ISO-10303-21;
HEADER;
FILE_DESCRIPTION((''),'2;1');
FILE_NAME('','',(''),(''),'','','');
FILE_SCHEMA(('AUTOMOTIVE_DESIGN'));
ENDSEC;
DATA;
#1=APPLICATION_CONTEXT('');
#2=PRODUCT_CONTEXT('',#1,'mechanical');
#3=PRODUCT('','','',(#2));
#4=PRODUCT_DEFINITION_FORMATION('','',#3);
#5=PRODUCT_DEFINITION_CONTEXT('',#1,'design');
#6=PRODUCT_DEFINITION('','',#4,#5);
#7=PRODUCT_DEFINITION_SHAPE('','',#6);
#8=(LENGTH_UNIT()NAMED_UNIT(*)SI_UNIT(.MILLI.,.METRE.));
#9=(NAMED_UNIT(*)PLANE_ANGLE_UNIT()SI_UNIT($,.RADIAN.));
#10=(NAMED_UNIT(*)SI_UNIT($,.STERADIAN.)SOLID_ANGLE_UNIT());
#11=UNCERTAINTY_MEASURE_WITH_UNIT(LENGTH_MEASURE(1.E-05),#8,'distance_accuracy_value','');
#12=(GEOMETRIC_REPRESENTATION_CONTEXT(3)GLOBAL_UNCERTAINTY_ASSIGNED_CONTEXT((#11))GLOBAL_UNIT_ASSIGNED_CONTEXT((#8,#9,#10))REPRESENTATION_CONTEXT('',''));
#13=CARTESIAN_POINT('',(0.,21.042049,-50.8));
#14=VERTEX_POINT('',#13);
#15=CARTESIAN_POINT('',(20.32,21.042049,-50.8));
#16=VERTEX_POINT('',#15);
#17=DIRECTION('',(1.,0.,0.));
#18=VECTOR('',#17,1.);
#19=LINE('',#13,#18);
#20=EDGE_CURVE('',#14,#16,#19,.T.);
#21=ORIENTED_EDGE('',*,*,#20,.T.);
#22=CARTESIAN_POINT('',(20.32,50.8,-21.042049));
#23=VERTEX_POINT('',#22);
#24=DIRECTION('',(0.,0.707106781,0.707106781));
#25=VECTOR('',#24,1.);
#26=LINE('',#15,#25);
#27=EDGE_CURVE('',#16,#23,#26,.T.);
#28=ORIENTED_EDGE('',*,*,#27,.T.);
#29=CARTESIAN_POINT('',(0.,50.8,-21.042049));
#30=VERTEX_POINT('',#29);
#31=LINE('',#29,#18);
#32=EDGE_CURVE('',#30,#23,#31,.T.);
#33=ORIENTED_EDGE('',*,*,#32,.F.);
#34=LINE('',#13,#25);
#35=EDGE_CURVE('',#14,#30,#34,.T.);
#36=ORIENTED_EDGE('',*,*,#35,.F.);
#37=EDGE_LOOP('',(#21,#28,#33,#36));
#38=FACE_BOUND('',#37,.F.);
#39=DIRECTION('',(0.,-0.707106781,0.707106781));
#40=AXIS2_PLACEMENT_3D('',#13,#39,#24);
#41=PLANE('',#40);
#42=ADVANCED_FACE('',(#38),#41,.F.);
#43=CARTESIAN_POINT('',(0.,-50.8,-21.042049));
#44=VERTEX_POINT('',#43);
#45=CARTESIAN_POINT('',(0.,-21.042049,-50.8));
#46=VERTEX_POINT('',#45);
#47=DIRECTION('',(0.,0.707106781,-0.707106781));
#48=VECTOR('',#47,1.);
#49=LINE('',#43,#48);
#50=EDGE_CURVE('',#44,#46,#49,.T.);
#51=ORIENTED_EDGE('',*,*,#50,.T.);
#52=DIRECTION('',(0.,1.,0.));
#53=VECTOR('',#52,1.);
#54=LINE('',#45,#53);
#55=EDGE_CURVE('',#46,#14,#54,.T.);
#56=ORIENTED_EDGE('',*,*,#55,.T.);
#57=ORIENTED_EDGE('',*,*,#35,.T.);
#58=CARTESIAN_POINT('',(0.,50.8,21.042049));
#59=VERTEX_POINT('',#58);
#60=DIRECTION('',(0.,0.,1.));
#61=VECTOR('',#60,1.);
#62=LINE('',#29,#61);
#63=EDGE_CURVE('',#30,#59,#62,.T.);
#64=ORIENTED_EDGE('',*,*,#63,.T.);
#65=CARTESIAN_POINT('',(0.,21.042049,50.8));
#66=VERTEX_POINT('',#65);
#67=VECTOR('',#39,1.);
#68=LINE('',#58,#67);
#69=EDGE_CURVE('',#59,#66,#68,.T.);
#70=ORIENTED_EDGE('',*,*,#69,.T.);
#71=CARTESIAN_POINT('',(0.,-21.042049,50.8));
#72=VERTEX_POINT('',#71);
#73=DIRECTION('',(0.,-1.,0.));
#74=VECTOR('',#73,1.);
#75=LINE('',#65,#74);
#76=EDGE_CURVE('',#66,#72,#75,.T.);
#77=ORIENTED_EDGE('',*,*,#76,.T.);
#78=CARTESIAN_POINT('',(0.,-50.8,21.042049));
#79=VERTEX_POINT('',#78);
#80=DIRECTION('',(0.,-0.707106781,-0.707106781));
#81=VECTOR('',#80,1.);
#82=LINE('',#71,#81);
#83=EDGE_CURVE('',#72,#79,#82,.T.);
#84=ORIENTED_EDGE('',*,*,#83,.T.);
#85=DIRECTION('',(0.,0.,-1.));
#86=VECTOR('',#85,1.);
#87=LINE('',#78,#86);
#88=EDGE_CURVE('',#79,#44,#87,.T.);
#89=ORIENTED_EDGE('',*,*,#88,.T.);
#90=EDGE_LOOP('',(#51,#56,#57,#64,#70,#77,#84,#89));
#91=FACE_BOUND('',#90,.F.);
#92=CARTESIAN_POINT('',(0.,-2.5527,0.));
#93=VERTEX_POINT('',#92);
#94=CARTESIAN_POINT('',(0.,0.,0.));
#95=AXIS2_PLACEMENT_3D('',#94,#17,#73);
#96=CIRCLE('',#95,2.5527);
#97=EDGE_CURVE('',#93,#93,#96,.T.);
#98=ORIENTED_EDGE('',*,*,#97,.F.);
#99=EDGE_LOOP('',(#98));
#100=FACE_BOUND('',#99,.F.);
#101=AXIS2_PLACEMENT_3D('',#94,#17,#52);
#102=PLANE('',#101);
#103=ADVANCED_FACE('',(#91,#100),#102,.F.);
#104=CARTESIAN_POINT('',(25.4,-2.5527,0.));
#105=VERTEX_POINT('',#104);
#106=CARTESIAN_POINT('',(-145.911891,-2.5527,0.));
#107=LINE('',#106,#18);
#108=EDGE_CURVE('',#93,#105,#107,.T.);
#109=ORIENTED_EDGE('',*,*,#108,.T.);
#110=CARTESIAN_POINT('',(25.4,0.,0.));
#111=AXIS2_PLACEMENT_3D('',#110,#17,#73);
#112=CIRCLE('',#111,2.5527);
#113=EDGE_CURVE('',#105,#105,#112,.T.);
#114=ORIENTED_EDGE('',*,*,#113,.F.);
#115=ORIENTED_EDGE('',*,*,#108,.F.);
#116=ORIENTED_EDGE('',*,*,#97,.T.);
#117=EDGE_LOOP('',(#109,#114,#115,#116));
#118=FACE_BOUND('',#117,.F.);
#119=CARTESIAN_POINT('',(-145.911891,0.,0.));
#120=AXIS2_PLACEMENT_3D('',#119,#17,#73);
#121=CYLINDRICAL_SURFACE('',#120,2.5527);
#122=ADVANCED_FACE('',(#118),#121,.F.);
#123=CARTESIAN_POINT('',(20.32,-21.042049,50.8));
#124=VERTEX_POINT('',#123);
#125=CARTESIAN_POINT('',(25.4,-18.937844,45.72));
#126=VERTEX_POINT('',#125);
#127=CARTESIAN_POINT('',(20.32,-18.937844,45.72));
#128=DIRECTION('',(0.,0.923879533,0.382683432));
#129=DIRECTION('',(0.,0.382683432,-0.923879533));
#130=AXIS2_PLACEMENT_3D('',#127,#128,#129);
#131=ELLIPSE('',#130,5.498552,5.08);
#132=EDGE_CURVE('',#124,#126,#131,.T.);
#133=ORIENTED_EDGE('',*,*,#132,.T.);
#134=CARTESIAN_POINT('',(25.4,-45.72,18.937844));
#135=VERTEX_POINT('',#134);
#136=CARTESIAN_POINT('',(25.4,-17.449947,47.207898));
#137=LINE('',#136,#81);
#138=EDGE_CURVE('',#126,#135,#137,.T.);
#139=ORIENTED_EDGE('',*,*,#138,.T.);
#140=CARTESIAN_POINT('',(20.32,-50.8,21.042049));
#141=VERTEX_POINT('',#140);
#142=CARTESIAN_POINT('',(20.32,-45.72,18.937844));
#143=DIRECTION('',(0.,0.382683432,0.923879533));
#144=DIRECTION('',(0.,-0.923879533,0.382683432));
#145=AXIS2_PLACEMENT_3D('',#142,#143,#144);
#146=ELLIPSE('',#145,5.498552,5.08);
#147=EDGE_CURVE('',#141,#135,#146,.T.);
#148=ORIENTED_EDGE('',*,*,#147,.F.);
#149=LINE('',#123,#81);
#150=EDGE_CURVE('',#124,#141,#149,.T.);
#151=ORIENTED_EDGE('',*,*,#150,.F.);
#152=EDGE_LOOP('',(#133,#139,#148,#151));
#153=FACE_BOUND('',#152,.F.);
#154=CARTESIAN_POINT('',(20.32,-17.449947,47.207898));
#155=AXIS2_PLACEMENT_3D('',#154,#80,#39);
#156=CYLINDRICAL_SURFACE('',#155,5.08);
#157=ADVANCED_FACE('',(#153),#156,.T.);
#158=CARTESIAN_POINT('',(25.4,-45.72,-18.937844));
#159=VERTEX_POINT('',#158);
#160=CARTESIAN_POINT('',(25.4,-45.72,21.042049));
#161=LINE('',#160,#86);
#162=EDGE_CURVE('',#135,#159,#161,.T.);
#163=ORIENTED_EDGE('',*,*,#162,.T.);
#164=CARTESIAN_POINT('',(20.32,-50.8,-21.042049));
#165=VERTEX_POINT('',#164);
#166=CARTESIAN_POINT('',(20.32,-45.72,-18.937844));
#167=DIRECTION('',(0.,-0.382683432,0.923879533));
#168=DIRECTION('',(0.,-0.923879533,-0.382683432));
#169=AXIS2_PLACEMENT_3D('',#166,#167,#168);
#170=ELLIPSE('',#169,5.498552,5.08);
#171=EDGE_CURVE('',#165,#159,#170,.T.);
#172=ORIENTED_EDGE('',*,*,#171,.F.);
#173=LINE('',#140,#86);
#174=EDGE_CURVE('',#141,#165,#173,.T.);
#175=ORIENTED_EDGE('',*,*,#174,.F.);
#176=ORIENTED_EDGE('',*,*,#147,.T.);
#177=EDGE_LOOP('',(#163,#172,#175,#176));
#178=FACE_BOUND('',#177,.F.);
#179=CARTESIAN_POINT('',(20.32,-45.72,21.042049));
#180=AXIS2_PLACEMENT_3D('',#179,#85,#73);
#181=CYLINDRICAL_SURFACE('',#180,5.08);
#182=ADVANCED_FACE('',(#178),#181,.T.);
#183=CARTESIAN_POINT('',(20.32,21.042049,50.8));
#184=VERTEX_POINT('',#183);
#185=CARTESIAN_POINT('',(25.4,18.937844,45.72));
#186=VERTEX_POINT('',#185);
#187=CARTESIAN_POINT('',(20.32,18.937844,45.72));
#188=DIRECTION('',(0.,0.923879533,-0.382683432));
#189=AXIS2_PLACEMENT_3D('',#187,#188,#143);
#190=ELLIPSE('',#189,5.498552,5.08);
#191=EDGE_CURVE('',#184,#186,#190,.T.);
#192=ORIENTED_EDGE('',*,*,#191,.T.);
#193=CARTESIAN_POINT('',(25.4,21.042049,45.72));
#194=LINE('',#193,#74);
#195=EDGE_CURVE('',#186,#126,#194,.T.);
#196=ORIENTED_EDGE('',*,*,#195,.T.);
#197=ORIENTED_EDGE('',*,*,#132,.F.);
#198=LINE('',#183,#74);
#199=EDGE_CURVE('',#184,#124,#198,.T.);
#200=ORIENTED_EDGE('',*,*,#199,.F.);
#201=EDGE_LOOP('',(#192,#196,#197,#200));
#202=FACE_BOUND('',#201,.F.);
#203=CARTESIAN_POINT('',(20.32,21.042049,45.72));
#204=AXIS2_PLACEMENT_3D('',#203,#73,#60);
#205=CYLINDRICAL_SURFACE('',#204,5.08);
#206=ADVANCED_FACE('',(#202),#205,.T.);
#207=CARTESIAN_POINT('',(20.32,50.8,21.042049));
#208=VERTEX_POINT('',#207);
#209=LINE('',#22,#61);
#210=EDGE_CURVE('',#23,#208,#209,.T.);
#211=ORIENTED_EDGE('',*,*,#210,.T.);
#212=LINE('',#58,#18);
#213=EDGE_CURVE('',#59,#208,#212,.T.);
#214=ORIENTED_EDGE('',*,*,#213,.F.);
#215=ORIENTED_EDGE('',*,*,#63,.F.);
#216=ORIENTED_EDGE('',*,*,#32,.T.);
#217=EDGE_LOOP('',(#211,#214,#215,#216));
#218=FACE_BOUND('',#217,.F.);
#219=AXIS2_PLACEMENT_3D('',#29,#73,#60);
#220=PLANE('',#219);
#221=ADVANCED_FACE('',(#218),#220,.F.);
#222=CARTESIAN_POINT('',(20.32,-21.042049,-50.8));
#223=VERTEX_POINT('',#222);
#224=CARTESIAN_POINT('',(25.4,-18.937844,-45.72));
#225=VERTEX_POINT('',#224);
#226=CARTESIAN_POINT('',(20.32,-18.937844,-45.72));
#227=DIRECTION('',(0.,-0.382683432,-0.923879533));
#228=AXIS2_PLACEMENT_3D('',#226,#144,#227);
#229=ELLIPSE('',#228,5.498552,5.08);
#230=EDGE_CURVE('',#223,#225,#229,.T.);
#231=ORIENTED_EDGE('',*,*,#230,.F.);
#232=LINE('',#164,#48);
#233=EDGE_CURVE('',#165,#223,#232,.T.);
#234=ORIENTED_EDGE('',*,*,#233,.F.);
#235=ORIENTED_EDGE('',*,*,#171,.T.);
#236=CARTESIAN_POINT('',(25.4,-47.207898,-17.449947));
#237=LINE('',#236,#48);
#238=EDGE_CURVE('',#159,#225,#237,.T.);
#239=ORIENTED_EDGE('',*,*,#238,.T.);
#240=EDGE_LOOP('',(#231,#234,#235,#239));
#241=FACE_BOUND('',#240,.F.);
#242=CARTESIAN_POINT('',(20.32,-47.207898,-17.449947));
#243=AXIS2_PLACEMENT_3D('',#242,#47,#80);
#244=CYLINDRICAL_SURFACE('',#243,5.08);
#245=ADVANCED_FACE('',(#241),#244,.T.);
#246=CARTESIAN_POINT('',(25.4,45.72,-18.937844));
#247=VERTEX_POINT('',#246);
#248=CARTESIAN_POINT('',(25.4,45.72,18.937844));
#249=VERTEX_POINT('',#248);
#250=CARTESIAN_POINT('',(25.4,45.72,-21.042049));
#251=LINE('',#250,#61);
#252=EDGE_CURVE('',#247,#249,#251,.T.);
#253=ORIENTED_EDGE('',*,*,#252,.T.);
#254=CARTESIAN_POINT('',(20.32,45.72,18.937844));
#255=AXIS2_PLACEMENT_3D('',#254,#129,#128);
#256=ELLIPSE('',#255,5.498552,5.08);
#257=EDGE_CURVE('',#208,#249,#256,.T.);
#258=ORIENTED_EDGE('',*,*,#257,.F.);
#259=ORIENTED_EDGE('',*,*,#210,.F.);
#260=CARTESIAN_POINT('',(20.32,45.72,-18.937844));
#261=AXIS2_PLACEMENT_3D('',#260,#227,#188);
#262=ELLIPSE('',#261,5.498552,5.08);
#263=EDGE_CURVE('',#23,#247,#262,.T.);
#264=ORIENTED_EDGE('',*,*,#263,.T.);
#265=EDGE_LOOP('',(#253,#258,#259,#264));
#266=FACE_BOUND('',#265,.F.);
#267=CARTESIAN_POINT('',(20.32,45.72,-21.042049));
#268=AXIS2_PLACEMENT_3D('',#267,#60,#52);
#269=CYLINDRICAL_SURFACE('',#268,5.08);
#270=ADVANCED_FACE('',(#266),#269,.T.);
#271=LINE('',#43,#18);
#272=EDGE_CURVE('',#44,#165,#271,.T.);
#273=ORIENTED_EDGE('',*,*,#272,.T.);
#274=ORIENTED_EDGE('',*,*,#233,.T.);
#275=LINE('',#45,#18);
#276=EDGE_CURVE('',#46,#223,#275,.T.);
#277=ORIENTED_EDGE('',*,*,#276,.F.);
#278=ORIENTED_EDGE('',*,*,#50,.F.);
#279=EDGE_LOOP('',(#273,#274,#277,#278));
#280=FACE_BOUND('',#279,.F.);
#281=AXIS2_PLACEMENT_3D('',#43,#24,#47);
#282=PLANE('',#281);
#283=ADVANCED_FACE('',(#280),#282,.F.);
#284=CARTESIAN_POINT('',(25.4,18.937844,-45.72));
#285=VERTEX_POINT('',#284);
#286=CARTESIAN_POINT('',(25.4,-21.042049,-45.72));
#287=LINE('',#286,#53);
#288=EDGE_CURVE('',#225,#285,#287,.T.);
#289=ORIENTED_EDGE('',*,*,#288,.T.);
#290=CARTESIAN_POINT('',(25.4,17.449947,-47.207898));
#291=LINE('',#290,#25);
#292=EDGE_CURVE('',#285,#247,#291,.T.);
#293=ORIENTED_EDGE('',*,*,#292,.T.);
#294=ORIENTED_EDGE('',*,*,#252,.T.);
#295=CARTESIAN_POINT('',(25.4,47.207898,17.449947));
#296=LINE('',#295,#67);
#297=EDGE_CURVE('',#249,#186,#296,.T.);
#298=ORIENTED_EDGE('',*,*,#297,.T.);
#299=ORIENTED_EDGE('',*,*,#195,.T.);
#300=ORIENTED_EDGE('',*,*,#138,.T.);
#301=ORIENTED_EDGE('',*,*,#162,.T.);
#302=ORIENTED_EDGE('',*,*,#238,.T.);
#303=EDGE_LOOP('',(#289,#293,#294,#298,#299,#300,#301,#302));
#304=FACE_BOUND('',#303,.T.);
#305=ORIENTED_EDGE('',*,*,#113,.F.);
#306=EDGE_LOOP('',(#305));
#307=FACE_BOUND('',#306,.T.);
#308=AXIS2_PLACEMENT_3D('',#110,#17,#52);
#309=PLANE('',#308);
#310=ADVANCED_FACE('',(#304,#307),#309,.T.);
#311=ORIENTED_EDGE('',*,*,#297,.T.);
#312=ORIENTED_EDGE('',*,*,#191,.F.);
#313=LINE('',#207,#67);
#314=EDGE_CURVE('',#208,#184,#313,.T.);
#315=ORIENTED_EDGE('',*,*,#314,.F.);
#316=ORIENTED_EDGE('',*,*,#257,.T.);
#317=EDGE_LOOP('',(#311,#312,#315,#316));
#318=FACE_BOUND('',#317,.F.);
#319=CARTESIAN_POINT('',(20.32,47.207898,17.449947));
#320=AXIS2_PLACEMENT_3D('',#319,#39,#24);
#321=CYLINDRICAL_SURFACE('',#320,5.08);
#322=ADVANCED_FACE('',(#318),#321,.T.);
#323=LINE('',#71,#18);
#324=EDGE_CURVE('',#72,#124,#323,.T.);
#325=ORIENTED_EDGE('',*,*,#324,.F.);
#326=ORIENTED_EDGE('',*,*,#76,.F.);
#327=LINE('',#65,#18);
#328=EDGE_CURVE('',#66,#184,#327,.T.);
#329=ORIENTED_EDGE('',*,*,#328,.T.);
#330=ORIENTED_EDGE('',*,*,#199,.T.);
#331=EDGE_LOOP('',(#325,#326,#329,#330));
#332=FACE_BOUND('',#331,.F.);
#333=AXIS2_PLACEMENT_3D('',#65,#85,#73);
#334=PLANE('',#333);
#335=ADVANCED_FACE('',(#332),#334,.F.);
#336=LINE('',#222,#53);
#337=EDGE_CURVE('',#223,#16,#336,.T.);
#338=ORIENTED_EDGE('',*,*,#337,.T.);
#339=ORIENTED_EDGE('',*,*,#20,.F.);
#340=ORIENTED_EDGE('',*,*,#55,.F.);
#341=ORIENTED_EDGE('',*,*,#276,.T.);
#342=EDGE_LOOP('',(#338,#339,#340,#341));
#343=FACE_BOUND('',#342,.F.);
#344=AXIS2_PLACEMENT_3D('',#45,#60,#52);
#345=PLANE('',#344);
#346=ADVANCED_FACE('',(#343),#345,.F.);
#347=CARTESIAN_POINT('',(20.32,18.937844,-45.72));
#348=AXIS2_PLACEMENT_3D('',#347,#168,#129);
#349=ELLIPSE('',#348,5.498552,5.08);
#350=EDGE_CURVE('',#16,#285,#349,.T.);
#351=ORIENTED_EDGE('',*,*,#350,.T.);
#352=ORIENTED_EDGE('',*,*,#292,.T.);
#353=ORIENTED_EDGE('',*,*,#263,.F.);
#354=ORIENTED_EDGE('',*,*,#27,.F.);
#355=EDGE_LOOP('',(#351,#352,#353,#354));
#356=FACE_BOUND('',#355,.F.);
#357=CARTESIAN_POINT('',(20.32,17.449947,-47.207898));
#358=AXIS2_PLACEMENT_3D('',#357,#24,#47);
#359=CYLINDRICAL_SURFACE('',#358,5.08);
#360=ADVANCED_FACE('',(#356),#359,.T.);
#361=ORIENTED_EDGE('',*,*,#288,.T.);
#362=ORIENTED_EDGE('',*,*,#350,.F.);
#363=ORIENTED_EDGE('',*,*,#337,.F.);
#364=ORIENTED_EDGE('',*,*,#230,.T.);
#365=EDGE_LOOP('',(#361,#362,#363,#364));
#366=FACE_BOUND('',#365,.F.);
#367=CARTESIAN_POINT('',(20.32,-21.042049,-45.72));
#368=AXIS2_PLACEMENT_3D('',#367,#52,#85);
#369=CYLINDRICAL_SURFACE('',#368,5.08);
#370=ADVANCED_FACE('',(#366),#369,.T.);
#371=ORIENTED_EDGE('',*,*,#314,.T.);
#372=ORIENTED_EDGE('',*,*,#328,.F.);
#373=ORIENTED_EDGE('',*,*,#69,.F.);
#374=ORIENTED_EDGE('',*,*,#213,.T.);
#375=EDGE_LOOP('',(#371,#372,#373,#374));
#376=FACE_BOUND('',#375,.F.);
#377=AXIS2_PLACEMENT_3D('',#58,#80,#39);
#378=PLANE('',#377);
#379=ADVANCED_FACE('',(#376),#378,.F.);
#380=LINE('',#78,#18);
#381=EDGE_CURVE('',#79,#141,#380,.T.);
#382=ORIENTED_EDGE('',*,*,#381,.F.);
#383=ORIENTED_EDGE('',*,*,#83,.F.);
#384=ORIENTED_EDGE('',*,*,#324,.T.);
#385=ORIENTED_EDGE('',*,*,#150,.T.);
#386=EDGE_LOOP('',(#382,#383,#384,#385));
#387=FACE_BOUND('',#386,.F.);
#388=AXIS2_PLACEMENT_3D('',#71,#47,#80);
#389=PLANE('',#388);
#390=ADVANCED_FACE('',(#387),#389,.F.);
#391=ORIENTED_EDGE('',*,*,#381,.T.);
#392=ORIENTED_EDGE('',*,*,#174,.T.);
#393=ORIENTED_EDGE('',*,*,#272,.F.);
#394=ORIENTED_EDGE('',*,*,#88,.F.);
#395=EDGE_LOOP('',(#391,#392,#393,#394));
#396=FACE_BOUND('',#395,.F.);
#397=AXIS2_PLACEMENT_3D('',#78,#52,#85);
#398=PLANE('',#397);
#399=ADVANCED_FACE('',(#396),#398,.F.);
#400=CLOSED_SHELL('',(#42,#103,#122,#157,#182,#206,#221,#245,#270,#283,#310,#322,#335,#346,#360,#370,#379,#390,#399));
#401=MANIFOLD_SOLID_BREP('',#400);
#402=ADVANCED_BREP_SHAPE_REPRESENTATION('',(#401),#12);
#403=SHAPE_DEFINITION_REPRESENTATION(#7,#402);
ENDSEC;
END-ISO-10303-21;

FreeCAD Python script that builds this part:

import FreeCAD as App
import Part
import Sketcher

V = App.Vector
Q = App.Units.Quantity


def edges_at(feature, points):
    """Names of the edges that pass closest to the given points."""
    edges = feature.Shape.Edges
    near = lambda p: min(range(len(edges)), key=lambda i: edges[i].distToShape(Part.Vertex(*p))[0])
    return sorted({f"Edge{near(p) + 1}" for p in points})


def add_polygon(sketch, points):
    """Adds a closed chain of lines whose ends are joined by coincident constraints."""
    first, n = sketch.GeometryCount, len(points)
    for a, b in zip(points, points[1:] + points[:1]):
        sketch.addGeometry(Part.LineSegment(App.Vector(*a, 0), App.Vector(*b, 0)), False)
    for i in range(n):
        sketch.addConstraint(Sketcher.Constraint("Coincident", first + i, 2, first + (i + 1) % n, 1))

doc = App.newDocument("Part")
body = doc.addObject("PartDesign::Body", "Body")

# Sketch on YZ plane
sketch1 = doc.addObject("Sketcher::SketchObject", "Sketch")
body.addObject(sketch1)
sketch1.AttachmentSupport = (doc.YZ_Plane, [""])
sketch1.MapMode = "FlatFace"
add_polygon(sketch1, [(51, -21), (51, 21), (21, 51), (-21, 51), (-51, 21), (-51, -21), (-21, -51), (21, -51)])  # lines 0-7
sketch1.addConstraint([
    Sketcher.Constraint("Vertical", 0),
    Sketcher.Constraint("Horizontal", 2),
    Sketcher.Constraint("Vertical", 4),
    Sketcher.Constraint("Horizontal", 6),
    Sketcher.Constraint("Symmetric", 0, 2, 4, 2, -1, 1),
    Sketcher.Constraint("Symmetric", 1, 2, 5, 2, -1, 1),
    Sketcher.Constraint("Perpendicular", 1, 3),
    Sketcher.Constraint("Perpendicular", 5, 7),
    Sketcher.Constraint("Horizontal", 0, 2, 3, 2),
    Sketcher.Constraint("Horizontal", 4, 2, 7, 2),
    Sketcher.Constraint("Vertical", 2, 2, 5, 2),
    Sketcher.Constraint("Equal", 6, 0),
    Sketcher.Constraint("DistanceX", -1, 1, 0, 2, Q("2 in")),
    Sketcher.Constraint("DistanceX", 2, 2, 2, 1, Q("42.084098 mm")),
])
pad1 = doc.addObject("PartDesign::Pad", "Pad")
body.addObject(pad1)
pad1.Profile = sketch1
pad1.Length = Q("1 in")
doc.recompute()

fillet = doc.addObject("PartDesign::Fillet", "Fillet")
body.addObject(fillet)
fillet.Base = (pad1, edges_at(pad1, [
    (25.4, -35.921, 35.921),
    (25.4, -50.8, 0),
    (25.4, -35.921, -35.921),
    (25.4, 0, -50.8),
    (25.4, 35.921, -35.921),
    (25.4, 50.8, 0),
    (25.4, 35.921, 35.921),
    (25.4, 0, 50.8),
]))
fillet.Radius = Q("0.2 in")

# Sketch on YZ plane
sketch2 = doc.addObject("Sketcher::SketchObject", "Sketch001")
body.addObject(sketch2)
sketch2.AttachmentSupport = (doc.YZ_Plane, [""])
sketch2.MapMode = "FlatFace"
sketch2.addGeometry(Part.Circle(V(0, 0, 0), V(0, 0, 1), 2.6), False)
sketch2.addConstraint([
    Sketcher.Constraint("Coincident", 0, 3, -1, 1),
    Sketcher.Constraint("Diameter", 0, Q("0.201 in")),
])
doc.recompute()
hole = doc.addObject("PartDesign::Hole", "Hole")
body.addObject(hole)
hole.Profile = sketch2
hole.ThreadType = "None"
hole.Diameter = Q("0.201 in")
hole.DepthType = "ThroughAll"
hole.Reversed = True

doc.recompute()
